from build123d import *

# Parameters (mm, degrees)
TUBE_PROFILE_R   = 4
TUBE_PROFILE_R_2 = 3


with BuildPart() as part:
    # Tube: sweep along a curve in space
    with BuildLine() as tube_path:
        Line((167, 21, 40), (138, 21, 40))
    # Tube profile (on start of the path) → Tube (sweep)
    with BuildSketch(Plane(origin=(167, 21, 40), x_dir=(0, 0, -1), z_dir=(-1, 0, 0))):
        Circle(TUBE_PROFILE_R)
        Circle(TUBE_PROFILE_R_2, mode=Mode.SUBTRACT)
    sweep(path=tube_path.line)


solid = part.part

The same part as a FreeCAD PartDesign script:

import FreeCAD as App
import Part
import Sketcher
from FreeCAD import Vector
Q = App.Units.Quantity

doc = App.newDocument("Part")
body = doc.addObject("PartDesign::Body", "Body")

# Sketch on YZ plane
sketch1 = doc.addObject("Sketcher::SketchObject", "Sketch")
body.addObject(sketch1)
sketch1.AttachmentSupport = (doc.YZ_Plane, [""])
sketch1.MapMode = "FlatFace"
sketch1.AttachmentOffset = App.Placement(Vector(0, 0, 167), App.Rotation())
sketch1.addGeometry(Part.Circle(Vector(21, 40, 0), Vector(0, 0, 1), 4), False)
sketch1.addGeometry(Part.Circle(Vector(21, 40, 0), Vector(0, 0, 1), 3), False)
sketch1.addConstraint(Sketcher.Constraint("Coincident", 1, 3, 0, 3))
sketch1.addConstraint(Sketcher.Constraint("Diameter", 0, Q("8 mm")))
sketch1.addConstraint(Sketcher.Constraint("Diameter", 1, Q("6 mm")))
sketch1.addConstraint(Sketcher.Constraint("DistanceX", -1, 1, 0, 3, Q("21 mm")))
sketch1.addConstraint(Sketcher.Constraint("DistanceY", -1, 1, 0, 3, Q("40 mm")))

# Sketch on XY plane
sketch2 = doc.addObject("Sketcher::SketchObject", "Sketch001")
body.addObject(sketch2)
sketch2.AttachmentSupport = (doc.XY_Plane, [""])
sketch2.MapMode = "FlatFace"
sketch2.AttachmentOffset = App.Placement(Vector(0, 0, 40), App.Rotation())
sketch2.addGeometry(Part.LineSegment(Vector(167, 21, 0), Vector(138, 21, 0)), False)
sketch2.addConstraint(Sketcher.Constraint("Horizontal", 0))
sketch2.addConstraint(Sketcher.Constraint("DistanceX", 0, 2, 0, 1, Q("29 mm")))
sketch2.addConstraint(Sketcher.Constraint("DistanceX", -1, 1, 0, 1, Q("167 mm")))
sketch2.addConstraint(Sketcher.Constraint("DistanceY", -1, 1, 0, 1, Q("21 mm")))
doc.recompute()

additivepipe = doc.addObject("PartDesign::AdditivePipe", "AdditivePipe")
body.addObject(additivepipe)
additivepipe.Profile = sketch1
additivepipe.Spine = (sketch2, ["Edge1"])

doc.recompute()
